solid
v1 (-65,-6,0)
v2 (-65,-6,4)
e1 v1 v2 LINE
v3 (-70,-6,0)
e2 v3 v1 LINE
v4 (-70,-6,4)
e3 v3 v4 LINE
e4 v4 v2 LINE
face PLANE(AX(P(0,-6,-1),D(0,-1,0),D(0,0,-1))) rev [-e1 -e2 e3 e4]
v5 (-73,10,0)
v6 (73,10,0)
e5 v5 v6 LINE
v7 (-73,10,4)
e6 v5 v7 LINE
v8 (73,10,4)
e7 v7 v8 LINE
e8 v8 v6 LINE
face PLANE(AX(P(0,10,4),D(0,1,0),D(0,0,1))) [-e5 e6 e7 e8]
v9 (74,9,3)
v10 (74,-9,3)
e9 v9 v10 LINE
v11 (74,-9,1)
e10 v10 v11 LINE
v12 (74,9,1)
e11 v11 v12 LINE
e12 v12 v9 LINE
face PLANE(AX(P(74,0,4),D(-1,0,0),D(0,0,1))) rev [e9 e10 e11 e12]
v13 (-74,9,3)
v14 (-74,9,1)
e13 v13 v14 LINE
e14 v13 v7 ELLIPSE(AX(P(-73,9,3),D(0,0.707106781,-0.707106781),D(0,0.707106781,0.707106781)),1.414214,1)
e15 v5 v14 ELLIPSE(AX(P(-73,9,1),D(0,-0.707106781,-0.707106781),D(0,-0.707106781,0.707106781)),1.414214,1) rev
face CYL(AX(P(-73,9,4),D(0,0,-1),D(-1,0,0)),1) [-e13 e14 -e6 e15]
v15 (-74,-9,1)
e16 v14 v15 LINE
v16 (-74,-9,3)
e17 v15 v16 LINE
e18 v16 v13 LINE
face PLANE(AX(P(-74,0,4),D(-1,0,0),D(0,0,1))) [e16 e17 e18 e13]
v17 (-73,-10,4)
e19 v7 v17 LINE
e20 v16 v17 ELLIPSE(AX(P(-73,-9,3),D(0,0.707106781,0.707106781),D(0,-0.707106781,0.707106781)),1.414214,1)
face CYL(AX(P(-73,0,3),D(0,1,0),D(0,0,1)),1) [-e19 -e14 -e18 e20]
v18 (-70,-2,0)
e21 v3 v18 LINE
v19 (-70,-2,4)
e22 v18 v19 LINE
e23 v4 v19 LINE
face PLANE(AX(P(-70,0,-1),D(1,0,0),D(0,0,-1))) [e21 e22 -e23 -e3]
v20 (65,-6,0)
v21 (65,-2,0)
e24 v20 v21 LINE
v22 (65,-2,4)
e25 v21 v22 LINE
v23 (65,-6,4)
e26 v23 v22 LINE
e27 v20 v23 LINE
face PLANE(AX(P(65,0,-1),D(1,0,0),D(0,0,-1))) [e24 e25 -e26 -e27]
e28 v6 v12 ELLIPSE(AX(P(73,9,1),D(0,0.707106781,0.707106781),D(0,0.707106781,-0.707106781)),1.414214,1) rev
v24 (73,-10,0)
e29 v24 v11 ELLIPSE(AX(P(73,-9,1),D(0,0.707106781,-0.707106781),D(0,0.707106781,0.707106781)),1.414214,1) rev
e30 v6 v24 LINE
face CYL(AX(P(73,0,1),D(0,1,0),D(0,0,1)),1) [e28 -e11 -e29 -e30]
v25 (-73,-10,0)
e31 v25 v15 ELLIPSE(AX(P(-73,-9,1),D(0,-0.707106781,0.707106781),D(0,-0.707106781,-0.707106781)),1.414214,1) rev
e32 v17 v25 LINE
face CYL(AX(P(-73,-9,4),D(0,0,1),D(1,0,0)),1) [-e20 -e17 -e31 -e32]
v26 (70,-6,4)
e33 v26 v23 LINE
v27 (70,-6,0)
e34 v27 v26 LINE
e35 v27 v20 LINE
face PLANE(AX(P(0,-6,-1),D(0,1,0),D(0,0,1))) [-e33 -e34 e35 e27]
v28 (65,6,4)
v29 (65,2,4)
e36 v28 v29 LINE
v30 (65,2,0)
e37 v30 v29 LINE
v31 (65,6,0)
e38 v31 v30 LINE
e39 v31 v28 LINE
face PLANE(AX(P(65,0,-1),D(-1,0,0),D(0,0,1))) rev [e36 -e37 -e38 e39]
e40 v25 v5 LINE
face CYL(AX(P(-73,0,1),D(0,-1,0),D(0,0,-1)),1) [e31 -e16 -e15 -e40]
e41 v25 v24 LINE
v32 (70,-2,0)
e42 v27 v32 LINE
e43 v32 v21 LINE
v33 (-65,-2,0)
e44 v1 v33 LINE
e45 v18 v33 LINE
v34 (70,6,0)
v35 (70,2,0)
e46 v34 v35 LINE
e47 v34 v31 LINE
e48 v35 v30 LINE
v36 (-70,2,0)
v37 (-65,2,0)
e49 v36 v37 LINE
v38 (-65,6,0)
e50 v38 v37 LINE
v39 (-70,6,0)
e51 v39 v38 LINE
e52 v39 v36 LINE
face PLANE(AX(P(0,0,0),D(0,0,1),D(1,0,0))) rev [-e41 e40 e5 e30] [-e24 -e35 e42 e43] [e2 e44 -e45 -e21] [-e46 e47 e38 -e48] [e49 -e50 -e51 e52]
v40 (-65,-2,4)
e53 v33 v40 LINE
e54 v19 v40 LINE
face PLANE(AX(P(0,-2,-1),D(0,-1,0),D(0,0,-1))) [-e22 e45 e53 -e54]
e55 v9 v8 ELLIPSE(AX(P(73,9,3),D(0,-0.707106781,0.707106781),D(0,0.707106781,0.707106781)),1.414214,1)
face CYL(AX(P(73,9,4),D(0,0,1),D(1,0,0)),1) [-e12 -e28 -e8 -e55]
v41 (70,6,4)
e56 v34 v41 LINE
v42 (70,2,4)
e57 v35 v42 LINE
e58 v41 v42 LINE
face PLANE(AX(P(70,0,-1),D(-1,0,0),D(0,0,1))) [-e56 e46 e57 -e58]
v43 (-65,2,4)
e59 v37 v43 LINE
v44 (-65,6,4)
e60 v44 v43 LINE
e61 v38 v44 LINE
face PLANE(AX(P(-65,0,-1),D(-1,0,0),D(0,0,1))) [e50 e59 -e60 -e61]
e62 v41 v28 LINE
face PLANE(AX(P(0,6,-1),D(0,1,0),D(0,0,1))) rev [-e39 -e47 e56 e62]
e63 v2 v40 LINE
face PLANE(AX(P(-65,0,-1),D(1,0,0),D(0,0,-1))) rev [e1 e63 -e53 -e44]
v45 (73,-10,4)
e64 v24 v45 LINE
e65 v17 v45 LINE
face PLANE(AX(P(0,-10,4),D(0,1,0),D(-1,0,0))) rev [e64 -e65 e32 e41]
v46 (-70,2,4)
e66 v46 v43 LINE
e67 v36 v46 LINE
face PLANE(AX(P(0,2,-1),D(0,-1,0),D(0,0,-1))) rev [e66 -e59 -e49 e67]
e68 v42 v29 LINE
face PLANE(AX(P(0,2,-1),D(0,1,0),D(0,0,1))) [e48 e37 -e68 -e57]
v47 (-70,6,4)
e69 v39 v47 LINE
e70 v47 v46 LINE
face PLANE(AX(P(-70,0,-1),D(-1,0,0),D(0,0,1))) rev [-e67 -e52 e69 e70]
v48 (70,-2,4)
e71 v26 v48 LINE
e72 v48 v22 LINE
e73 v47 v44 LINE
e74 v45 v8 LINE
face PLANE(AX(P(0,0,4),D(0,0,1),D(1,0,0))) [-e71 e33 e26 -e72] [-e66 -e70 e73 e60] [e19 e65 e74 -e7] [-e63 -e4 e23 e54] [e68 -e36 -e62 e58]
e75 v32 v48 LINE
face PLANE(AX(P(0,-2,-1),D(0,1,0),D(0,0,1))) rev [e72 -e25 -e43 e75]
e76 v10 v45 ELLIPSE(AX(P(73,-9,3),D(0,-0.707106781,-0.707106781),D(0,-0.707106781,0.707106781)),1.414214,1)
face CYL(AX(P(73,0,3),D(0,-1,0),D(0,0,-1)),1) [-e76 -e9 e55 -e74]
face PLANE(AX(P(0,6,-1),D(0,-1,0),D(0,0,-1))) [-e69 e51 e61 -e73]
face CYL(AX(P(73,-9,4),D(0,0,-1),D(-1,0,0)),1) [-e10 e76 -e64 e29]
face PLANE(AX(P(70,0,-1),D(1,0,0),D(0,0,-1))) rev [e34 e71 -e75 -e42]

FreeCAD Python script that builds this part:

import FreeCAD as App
import Part
import Sketcher
from FreeCAD import Vector
Q = App.Units.Quantity


def edges_at(feature, points):
    """Names of the edges that pass closest to the given points."""
    edges = feature.Shape.Edges
    near = lambda p: min(range(len(edges)), key=lambda i: edges[i].distToShape(Part.Vertex(*p))[0])
    return sorted({f"Edge{near(p) + 1}" for p in points})


def add_polygon(sketch, points):
    """Adds a closed chain of lines whose ends are joined by coincident constraints."""
    first, n = sketch.GeometryCount, len(points)
    for a, b in zip(points, points[1:] + points[:1]):
        sketch.addGeometry(Part.LineSegment(App.Vector(*a, 0), App.Vector(*b, 0)), False)
    for i in range(n):
        sketch.addConstraint(Sketcher.Constraint("Coincident", first + i, 2, first + (i + 1) % n, 1))

doc = App.newDocument("Part")
body = doc.addObject("PartDesign::Body", "Body")

sketch1 = body.newObject("Sketcher::SketchObject", "Sketch")
sketch1.AttachmentSupport = (doc.getObject("XY_Plane"), [""])
sketch1.MapMode = "FlatFace"
add_polygon(sketch1, [(-74, 10), (-74, -10), (74, -10), (74, 10)])
sketch1.addConstraint([
    Sketcher.Constraint("Vertical", 0),
    Sketcher.Constraint("Horizontal", 1),
    Sketcher.Constraint("Vertical", 2),
    Sketcher.Constraint("Horizontal", 3),
    Sketcher.Constraint("Symmetric", 0, 2, 2, 2, -1, 1),
    Sketcher.Constraint("DistanceX", 1, 1, 1, 2, Q("148 mm")),
    Sketcher.Constraint("DistanceY", 0, 2, 0, 1, Q("20 mm")),
])
pad1 = body.newObject("PartDesign::Pad", "Pad")
pad1.Profile = sketch1
pad1.Length = 4

sketch2 = body.newObject("Sketcher::SketchObject", "Sketch001")
sketch2.AttachmentSupport = (doc.getObject("XY_Plane"), [""])
sketch2.MapMode = "FlatFace"
sketch2.AttachmentOffset = App.Placement(Vector(0, 0, 4), App.Rotation())
add_polygon(sketch2, [(-70, -2), (-70, -6), (-65, -6), (-65, -2)])
add_polygon(sketch2, [(-70, 6), (-70, 2), (-65, 2), (-65, 6)])
add_polygon(sketch2, [(65, 6), (65, 2), (70, 2), (70, 6)])
add_polygon(sketch2, [(65, -2), (65, -6), (70, -6), (70, -2)])
sketch2.addConstraint([
    Sketcher.Constraint("Vertical", 0),
    Sketcher.Constraint("Horizontal", 1),
    Sketcher.Constraint("Vertical", 2),
    Sketcher.Constraint("Horizontal", 3),
    Sketcher.Constraint("Vertical", 4),
    Sketcher.Constraint("Horizontal", 5),
    Sketcher.Constraint("Vertical", 6),
    Sketcher.Constraint("Horizontal", 7),
    Sketcher.Constraint("Vertical", 8),
    Sketcher.Constraint("Horizontal", 9),
    Sketcher.Constraint("Vertical", 10),
    Sketcher.Constraint("Horizontal", 11),
    Sketcher.Constraint("Vertical", 12),
    Sketcher.Constraint("Horizontal", 13),
    Sketcher.Constraint("Vertical", 14),
    Sketcher.Constraint("Horizontal", 15),
    Sketcher.Constraint("Symmetric", 2, 2, 8, 2, -1, 1),
    Sketcher.Constraint("Symmetric", 0, 2, 10, 2, -1, 1),
    Sketcher.Constraint("Symmetric", 6, 2, 12, 2, -1, 1),
    Sketcher.Constraint("Symmetric", 4, 2, 14, 2, -1, 1),
    Sketcher.Constraint("Symmetric", 5, 2, 8, 2, -2),
    Sketcher.Constraint("Symmetric", 7, 2, 10, 2, -2),
    Sketcher.Constraint("DistanceX", 1, 1, 1, 2, Q("5 mm")),
    Sketcher.Constraint("DistanceY", 0, 2, 0, 1, Q("4 mm")),
    Sketcher.Constraint("DistanceX", 0, 2, -1, 1, Q("70 mm")),
    Sketcher.Constraint("DistanceY", 0, 2, -1, 1, Q("6 mm")),
])
pocket1 = body.newObject("PartDesign::Pocket", "Pocket")
pocket1.Profile = sketch2
pocket1.Length = 5
doc.recompute()

fillet = body.newObject("PartDesign::Fillet", "Fillet")
fillet.Base = (pocket1, edges_at(pocket1, [
    (-74, 0, 4),
    (74, 0, 4),
    (74, 0, 0),
    (-74, 0, 0),
    (74, 10, 2),
    (74, -10, 2),
    (-74, -10, 2),
    (-74, 10, 2),
]))
fillet.Radius = 1

doc.recompute()
